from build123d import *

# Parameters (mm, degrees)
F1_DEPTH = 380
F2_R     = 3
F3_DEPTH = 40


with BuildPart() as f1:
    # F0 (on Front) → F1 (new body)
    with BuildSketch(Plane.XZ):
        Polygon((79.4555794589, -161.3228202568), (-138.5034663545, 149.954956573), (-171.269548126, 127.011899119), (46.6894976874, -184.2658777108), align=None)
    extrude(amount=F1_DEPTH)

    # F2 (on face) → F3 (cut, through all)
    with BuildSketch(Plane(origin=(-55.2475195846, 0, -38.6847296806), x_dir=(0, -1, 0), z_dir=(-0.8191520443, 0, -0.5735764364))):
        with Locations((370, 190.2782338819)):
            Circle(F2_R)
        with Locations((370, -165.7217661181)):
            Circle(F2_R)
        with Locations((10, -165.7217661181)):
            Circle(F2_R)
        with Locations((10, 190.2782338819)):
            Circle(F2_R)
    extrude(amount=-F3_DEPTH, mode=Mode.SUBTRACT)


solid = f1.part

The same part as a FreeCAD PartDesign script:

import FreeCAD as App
import Part
import Sketcher
from FreeCAD import Vector
Q = App.Units.Quantity


def add_polygon(sketch, points):
    """Adds a closed chain of lines whose ends are joined by coincident constraints."""
    first, n = sketch.GeometryCount, len(points)
    for a, b in zip(points, points[1:] + points[:1]):
        sketch.addGeometry(Part.LineSegment(App.Vector(*a, 0), App.Vector(*b, 0)), False)
    for i in range(n):
        sketch.addConstraint(Sketcher.Constraint("Coincident", first + i, 2, first + (i + 1) % n, 1))

doc = App.newDocument("Part")
body = doc.addObject("PartDesign::Body", "Body")

# Sketch on XZ plane
sketch1 = body.newObject("Sketcher::SketchObject", "Sketch")
sketch1.AttachmentSupport = (doc.getObject("XZ_Plane"), [""])
sketch1.MapMode = "FlatFace"
add_polygon(sketch1, [(79, -161), (-139, 150), (-171, 127), (47, -184)])  # lines 0-3
sketch1.addConstraint(Sketcher.Constraint("Perpendicular", 0, 1))
sketch1.addConstraint(Sketcher.Constraint("Perpendicular", 1, 2))
sketch1.addConstraint(Sketcher.Constraint("Perpendicular", 2, 3))
sketch1.addConstraint(Sketcher.Constraint("Angle", 0, Q("125 deg")))
sketch1.addConstraint(Sketcher.Constraint("Distance", 0, 380.0))
sketch1.addConstraint(Sketcher.Constraint("Distance", 1, 40.0))
sketch1.addConstraint(Sketcher.Constraint("DistanceY", -1, 1, 1, 2, 127.011899))
sketch1.addConstraint(Sketcher.Constraint("DistanceX", 1, 2, -1, 1, 171.269548))
pad1 = body.newObject("PartDesign::Pad", "Pad")
pad1.Profile = sketch1
pad1.Length = 380

# Sketch on an angled plane
sketch2 = body.newObject("Sketcher::SketchObject", "Sketch001")
sketch2.Placement = App.Placement(Vector(-55.24752, 0, -38.68473), App.Rotation(Vector(0, -1, 0), Vector(-0.573576436, 0, 0.819152044), Vector(-0.819152044, 0, -0.573576436), "ZXY"))
sketch2.addGeometry(Part.Circle(Vector(370, 190.3, 0), Vector(0, 0, 1), 3), False)
sketch2.addGeometry(Part.Circle(Vector(370, -165.7, 0), Vector(0, 0, 1), 3), False)
sketch2.addGeometry(Part.Circle(Vector(10, -165.7, 0), Vector(0, 0, 1), 3), False)
sketch2.addGeometry(Part.Circle(Vector(10, 190.3, 0), Vector(0, 0, 1), 3), False)
sketch2.addConstraint(Sketcher.Constraint("Equal", 0, 1))
sketch2.addConstraint(Sketcher.Constraint("Equal", 1, 2))
sketch2.addConstraint(Sketcher.Constraint("Equal", 2, 3))
sketch2.addConstraint(Sketcher.Constraint("Horizontal", 1, 3, 2, 3))
sketch2.addConstraint(Sketcher.Constraint("Horizontal", 0, 3, 3, 3))
sketch2.addConstraint(Sketcher.Constraint("Vertical", 0, 3, 1, 3))
sketch2.addConstraint(Sketcher.Constraint("Vertical", 2, 3, 3, 3))
sketch2.addConstraint(Sketcher.Constraint("Diameter", 0, 6.0))
sketch2.addConstraint(Sketcher.Constraint("DistanceX", -1, 1, 0, 3, 370.0))
sketch2.addConstraint(Sketcher.Constraint("DistanceX", -1, 1, 2, 3, 10.0))
sketch2.addConstraint(Sketcher.Constraint("DistanceY", 1, 3, 0, 3, 356.0))
sketch2.addConstraint(Sketcher.Constraint("DistanceY", -1, 1, 0, 3, 190.278234))
pocket1 = body.newObject("PartDesign::Pocket", "Pocket")
pocket1.Profile = sketch2
pocket1.Type = "ThroughAll"

doc.recompute()
